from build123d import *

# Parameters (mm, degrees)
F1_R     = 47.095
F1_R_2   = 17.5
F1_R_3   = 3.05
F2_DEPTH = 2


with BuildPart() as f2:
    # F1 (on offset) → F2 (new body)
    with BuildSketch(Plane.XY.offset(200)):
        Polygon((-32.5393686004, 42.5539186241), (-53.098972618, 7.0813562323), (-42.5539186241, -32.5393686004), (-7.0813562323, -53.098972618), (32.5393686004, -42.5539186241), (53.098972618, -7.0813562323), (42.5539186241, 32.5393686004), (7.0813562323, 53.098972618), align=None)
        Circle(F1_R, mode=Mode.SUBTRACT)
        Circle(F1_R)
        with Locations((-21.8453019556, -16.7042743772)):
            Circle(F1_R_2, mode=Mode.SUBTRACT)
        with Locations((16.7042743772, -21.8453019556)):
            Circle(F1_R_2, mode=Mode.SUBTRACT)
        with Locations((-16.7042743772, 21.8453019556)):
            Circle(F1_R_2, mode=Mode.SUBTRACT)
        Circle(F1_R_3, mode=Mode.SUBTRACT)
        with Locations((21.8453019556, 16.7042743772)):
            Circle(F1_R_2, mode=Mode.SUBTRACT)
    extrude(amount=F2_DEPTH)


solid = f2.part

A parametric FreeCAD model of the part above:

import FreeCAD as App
import Part
import Sketcher
from FreeCAD import Vector
Q = App.Units.Quantity

doc = App.newDocument("Part")
params = doc.addObject("Spreadsheet::Sheet", "Params")
for row, (alias, value) in enumerate([
    ("sketch1_diameter", "35 mm"),
    ("sketch1_diameter2", "6.1 mm"),
    ("sketch1_length", "41 mm"),
    ("pad1_length", "2 mm"),
], start=1):
    params.set(f"A{row}", alias)
    params.set(f"B{row}", "=" + value)
    params.setAlias(f"B{row}", alias)

body = doc.addObject("PartDesign::Body", "Body")

# Sketch on XY plane
sketch1 = body.newObject("Sketcher::SketchObject", "Sketch")
sketch1.AttachmentSupport = (doc.getObject("XY_Plane"), [""])
sketch1.MapMode = "FlatFace"
sketch1.AttachmentOffset = App.Placement(Vector(0, 0, 200), App.Rotation())
sketch1.addGeometry([
    Part.LineSegment(Vector(-32.5, 42.6, 0), Vector(-53.1, 7.1, 0)),  # 0
    Part.LineSegment(Vector(-53.1, 7.1, 0), Vector(-42.6, -32.5, 0)),  # 1
    Part.LineSegment(Vector(-42.6, -32.5, 0), Vector(-7.1, -53.1, 0)),  # 2
    Part.LineSegment(Vector(-7.1, -53.1, 0), Vector(32.5, -42.6, 0)),  # 3
    Part.LineSegment(Vector(32.5, -42.6, 0), Vector(53.1, -7.1, 0)),  # 4
    Part.LineSegment(Vector(53.1, -7.1, 0), Vector(42.6, 32.5, 0)),  # 5
    Part.LineSegment(Vector(42.6, 32.5, 0), Vector(7.1, 53.1, 0)),  # 6
    Part.LineSegment(Vector(7.1, 53.1, 0), Vector(-32.5, 42.6, 0)),  # 7
    Part.Circle(Vector(-21.8, -16.7, 0), Vector(0, 0, 1), 17.5),  # 8
    Part.Circle(Vector(16.7, -21.8, 0), Vector(0, 0, 1), 17.5),  # 9
    Part.Circle(Vector(0, 0, 0), Vector(0, 0, 1), 3),  # 10
    Part.Circle(Vector(-16.7, 21.8, 0), Vector(0, 0, 1), 17.5),  # 11
    Part.Circle(Vector(21.8, 16.7, 0), Vector(0, 0, 1), 17.5),  # 12
], False)
sketch1.addConstraint([
    Sketcher.Constraint("Coincident", 0, 2, 1, 1),
    Sketcher.Constraint("Coincident", 1, 2, 2, 1),
    Sketcher.Constraint("Coincident", 2, 2, 3, 1),
    Sketcher.Constraint("Coincident", 3, 2, 4, 1),
    Sketcher.Constraint("Coincident", 4, 2, 5, 1),
    Sketcher.Constraint("Coincident", 5, 2, 6, 1),
    Sketcher.Constraint("Coincident", 6, 2, 7, 1),
    Sketcher.Constraint("Coincident", 7, 2, 0, 1),
    Sketcher.Constraint("Coincident", 10, 3, -1, 1),
    Sketcher.Constraint("Equal", 8, 9),
    Sketcher.Constraint("Equal", 9, 11),
    Sketcher.Constraint("Equal", 11, 12),
    Sketcher.Constraint("Symmetric", 9, 3, 11, 3, -1, 1),
    Sketcher.Constraint("Symmetric", 8, 3, 12, 3, -1, 1),
    Sketcher.Constraint("Symmetric", 0, 2, 4, 2, -1, 1),
    Sketcher.Constraint("Symmetric", 1, 2, 5, 2, -1, 1),
    Sketcher.Constraint("Symmetric", 2, 2, 6, 2, -1, 1),
    Sketcher.Constraint("Symmetric", 3, 2, 7, 2, -1, 1),
    Sketcher.Constraint("Perpendicular", 0, 2),
    Sketcher.Constraint("Perpendicular", 1, 3),
    Sketcher.Constraint("Equal", 0, 1),
    Sketcher.Constraint("Equal", 1, 2),
    Sketcher.Constraint("Equal", 2, 3),
    Sketcher.Constraint("Diameter", 8, Q("35 mm")),
    Sketcher.Constraint("Diameter", 10, Q("6.1 mm")),
    Sketcher.Constraint("Distance", 0, Q("41 mm")),
    Sketcher.Constraint("DistanceX", 8, 3, -1, 1, Q("21.845302 mm")),
    Sketcher.Constraint("DistanceY", 9, 3, -1, 1, Q("21.845302 mm")),
    Sketcher.Constraint("DistanceX", 0, 2, 11, 3, Q("36.394698 mm")),
    Sketcher.Constraint("DistanceY", 2, 2, 8, 3, Q("36.394698 mm")),
    Sketcher.Constraint("DistanceX", 1, 2, -1, 1, Q("42.553919 mm")),
    Sketcher.Constraint("DistanceY", 1, 2, -1, 1, Q("32.539369 mm")),
])
sketch1.setExpression("Constraints[23]", "Params.sketch1_diameter")
sketch1.setExpression("Constraints[24]", "Params.sketch1_diameter2")
sketch1.setExpression("Constraints[25]", "Params.sketch1_length")
pad1 = body.newObject("PartDesign::Pad", "Pad")
pad1.Profile = sketch1
pad1.setExpression("Length", "Params.pad1_length")

doc.recompute()
